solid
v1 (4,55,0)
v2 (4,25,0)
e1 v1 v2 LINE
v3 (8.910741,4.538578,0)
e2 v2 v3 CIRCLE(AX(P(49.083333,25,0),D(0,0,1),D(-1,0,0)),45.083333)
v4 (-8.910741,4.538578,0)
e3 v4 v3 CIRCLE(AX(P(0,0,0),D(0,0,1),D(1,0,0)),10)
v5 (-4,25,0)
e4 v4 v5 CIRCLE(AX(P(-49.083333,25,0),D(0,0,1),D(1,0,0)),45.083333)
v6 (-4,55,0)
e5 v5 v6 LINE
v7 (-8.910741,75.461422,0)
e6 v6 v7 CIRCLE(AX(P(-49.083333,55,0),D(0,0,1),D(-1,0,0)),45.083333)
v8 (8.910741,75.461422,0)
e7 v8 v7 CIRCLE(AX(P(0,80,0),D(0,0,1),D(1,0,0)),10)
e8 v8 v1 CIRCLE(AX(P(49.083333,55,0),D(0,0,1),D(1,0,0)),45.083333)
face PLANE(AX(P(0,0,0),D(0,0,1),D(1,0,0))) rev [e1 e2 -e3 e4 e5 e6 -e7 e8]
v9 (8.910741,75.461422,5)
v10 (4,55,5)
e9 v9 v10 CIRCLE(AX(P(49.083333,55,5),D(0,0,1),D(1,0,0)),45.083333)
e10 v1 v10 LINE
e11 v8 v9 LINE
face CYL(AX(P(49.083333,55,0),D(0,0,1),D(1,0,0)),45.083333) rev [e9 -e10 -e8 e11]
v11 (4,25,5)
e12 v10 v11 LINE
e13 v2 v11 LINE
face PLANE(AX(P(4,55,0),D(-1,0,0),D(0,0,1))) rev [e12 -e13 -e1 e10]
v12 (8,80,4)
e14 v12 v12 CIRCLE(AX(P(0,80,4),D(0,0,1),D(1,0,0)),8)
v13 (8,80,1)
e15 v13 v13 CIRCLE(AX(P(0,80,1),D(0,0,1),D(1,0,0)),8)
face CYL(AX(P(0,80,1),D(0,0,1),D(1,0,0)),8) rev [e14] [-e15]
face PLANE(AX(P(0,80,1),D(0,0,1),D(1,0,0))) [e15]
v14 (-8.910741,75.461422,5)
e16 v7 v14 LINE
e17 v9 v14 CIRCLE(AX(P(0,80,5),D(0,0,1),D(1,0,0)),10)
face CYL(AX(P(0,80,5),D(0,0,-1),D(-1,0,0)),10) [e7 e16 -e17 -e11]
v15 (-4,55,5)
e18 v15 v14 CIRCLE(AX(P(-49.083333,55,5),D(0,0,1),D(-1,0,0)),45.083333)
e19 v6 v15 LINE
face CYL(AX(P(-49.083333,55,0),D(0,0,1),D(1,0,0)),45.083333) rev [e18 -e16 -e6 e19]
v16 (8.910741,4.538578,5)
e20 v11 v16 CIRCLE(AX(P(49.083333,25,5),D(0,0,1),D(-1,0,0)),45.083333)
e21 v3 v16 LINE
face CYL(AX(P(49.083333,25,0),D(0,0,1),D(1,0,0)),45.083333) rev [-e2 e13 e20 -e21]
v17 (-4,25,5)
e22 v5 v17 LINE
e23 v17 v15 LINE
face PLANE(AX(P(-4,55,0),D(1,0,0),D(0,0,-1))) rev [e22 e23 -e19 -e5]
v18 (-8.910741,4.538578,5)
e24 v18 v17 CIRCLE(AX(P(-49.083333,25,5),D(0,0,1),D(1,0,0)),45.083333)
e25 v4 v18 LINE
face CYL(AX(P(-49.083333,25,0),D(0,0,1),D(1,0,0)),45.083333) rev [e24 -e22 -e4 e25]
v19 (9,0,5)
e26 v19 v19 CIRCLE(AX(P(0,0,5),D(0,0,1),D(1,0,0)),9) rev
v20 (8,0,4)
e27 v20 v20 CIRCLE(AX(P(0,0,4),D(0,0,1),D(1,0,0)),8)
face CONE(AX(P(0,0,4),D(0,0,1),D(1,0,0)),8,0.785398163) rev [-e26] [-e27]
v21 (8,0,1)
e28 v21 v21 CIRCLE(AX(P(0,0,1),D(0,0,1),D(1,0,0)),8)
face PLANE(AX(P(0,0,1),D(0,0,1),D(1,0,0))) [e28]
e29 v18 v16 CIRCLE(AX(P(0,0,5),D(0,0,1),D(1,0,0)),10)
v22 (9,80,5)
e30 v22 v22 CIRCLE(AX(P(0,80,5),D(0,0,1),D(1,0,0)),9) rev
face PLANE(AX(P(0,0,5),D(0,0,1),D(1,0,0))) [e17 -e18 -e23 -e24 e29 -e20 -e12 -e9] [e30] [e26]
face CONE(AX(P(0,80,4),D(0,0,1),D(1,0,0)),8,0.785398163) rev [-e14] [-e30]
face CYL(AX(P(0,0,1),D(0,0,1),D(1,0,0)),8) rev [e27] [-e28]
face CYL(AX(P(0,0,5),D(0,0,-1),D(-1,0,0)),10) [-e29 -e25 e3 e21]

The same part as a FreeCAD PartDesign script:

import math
import FreeCAD as App
import Part
import Sketcher
Q = App.Units.Quantity


def edges_at(feature, points):
    """Names of the edges that pass closest to the given points."""
    edges = feature.Shape.Edges
    near = lambda p: min(range(len(edges)), key=lambda i: edges[i].distToShape(Part.Vertex(*p))[0])
    return sorted({f"Edge{near(p) + 1}" for p in points})

doc = App.newDocument("Part")
body = doc.addObject("PartDesign::Body", "Body")

# Sketch on XY plane
sketch1 = body.newObject("Sketcher::SketchObject", "Sketch")
sketch1.AttachmentSupport = (doc.getObject("XY_Plane"), [""])
sketch1.MapMode = "FlatFace"
sketch1.addGeometry([
    Part.LineSegment(App.Vector(-10, 80, 0), App.Vector(-10, 0, 0)),
    Part.ArcOfCircle(Part.Circle(App.Vector(0, 0, 0), App.Vector(0, 0, 1), 10), math.radians(180), math.radians(360)),
    Part.LineSegment(App.Vector(10, 0, 0), App.Vector(10, 80, 0)),
    Part.ArcOfCircle(Part.Circle(App.Vector(0, 80, 0), App.Vector(0, 0, 1), 10), math.radians(0), math.radians(180)),
], False)
sketch1.addConstraint([
    Sketcher.Constraint("Tangent", 0, 2, 1, 1),
    Sketcher.Constraint("Tangent", 1, 2, 2, 1),
    Sketcher.Constraint("Tangent", 2, 2, 3, 1),
    Sketcher.Constraint("Tangent", 3, 2, 0, 1),
    Sketcher.Constraint("Vertical", 0),
    Sketcher.Constraint("Vertical", 2),
    Sketcher.Constraint("Coincident", 1, 3, -1, 1),
    Sketcher.Constraint("Radius", 1, Q("10 mm")),
    Sketcher.Constraint("DistanceY", 0, 2, 0, 1, Q("80 mm")),
])
pad1 = body.newObject("PartDesign::Pad", "Pad")
pad1.Profile = sketch1
pad1.Length = 5

# Sketch on XY plane
sketch2 = body.newObject("Sketcher::SketchObject", "Sketch001")
sketch2.AttachmentSupport = (doc.getObject("XY_Plane"), [""])
sketch2.MapMode = "FlatFace"
sketch2.AttachmentOffset = App.Placement(App.Vector(0, 0, 5), App.Rotation())
sketch2.addGeometry([
    Part.Circle(App.Vector(0, 0, 0), App.Vector(0, 0, 1), 8),
    Part.Circle(App.Vector(0, 80, 0), App.Vector(0, 0, 1), 8),
], False)
sketch2.addConstraint([
    Sketcher.Constraint("Coincident", 0, 3, -1, 1),
    Sketcher.Constraint("Equal", 0, 1),
    Sketcher.Constraint("PointOnObject", 1, 3, -2),
    Sketcher.Constraint("Diameter", 0, Q("16 mm")),
    Sketcher.Constraint("DistanceY", -1, 1, 1, 3, Q("80 mm")),
])
pocket1 = body.newObject("PartDesign::Pocket", "Pocket")
pocket1.Profile = sketch2
pocket1.Length = 4

# Sketch on XY plane
sketch3 = body.newObject("Sketcher::SketchObject", "Sketch002")
sketch3.AttachmentSupport = (doc.getObject("XY_Plane"), [""])
sketch3.MapMode = "FlatFace"
sketch3.AttachmentOffset = App.Placement(App.Vector(0, 0, 5), App.Rotation())
sketch3.addGeometry([
    Part.LineSegment(App.Vector(-4, 25, 0), App.Vector(-4, 55, 0)),  # 0
    Part.ArcOfCircle(Part.Circle(App.Vector(-49.1, 55, 0), App.Vector(0, 0, 1), 45.1), math.radians(0), math.radians(27)),  # 1
    Part.ArcOfCircle(Part.Circle(App.Vector(0, 80, 0), App.Vector(0, 0, 1), 10), math.radians(180), math.radians(207)),  # 2
    Part.LineSegment(App.Vector(-10, 80, 0), App.Vector(-10, 0, 0)),  # 3
    Part.ArcOfCircle(Part.Circle(App.Vector(0, 0, 0), App.Vector(0, 0, 1), 10), math.radians(153), math.radians(180)),  # 4
    Part.ArcOfCircle(Part.Circle(App.Vector(-49.1, 25, 0), App.Vector(0, 0, 1), 45.1), math.radians(-27), math.radians(0)),  # 5
    Part.LineSegment(App.Vector(4, 55, 0), App.Vector(4, 25, 0)),  # 6
    Part.ArcOfCircle(Part.Circle(App.Vector(49.1, 25, 0), App.Vector(0, 0, 1), 45.1), math.radians(-180), math.radians(-153)),  # 7
    Part.ArcOfCircle(Part.Circle(App.Vector(0, 0, 0), App.Vector(0, 0, 1), 10), math.radians(0), math.radians(27)),  # 8
    Part.LineSegment(App.Vector(10, 0, 0), App.Vector(10, 80, 0)),  # 9
    Part.ArcOfCircle(Part.Circle(App.Vector(0, 80, 0), App.Vector(0, 0, 1), 10), math.radians(-27), math.radians(0)),  # 10
    Part.ArcOfCircle(Part.Circle(App.Vector(49.1, 55, 0), App.Vector(0, 0, 1), 45.1), math.radians(153), math.radians(180)),  # 11
], False)
sketch3.addConstraint([
    Sketcher.Constraint("Tangent", 0, 2, 1, 1),
    Sketcher.Constraint("Tangent", 1, 2, 2, 2),
    Sketcher.Constraint("Tangent", 2, 1, 3, 1),
    Sketcher.Constraint("Tangent", 3, 2, 4, 2),
    Sketcher.Constraint("Tangent", 4, 1, 5, 1),
    Sketcher.Constraint("Tangent", 5, 2, 0, 1),
    Sketcher.Constraint("Tangent", 6, 2, 7, 1),
    Sketcher.Constraint("Tangent", 7, 2, 8, 2),
    Sketcher.Constraint("Tangent", 8, 1, 9, 1),
    Sketcher.Constraint("Tangent", 9, 2, 10, 2),
    Sketcher.Constraint("Tangent", 10, 1, 11, 1),
    Sketcher.Constraint("Tangent", 11, 2, 6, 1),
    Sketcher.Constraint("Vertical", 0),
    Sketcher.Constraint("Vertical", 3),
    Sketcher.Constraint("Vertical", 6),
    Sketcher.Constraint("Vertical", 9),
    Sketcher.Constraint("Coincident", 4, 3, -1, 1),
    Sketcher.Constraint("Coincident", 8, 3, -1, 1),
    Sketcher.Constraint("Coincident", 10, 3, 2, 3),
    Sketcher.Constraint("Equal", 2, 4),
    Sketcher.Constraint("Equal", 1, 5),
    Sketcher.Constraint("Equal", 5, 7),
    Sketcher.Constraint("Equal", 4, 8),
    Sketcher.Constraint("Equal", 7, 11),
    Sketcher.Constraint("Horizontal", 5, 3, 7, 3),
    Sketcher.Constraint("Radius", 2, Q("10 mm")),
    Sketcher.Constraint("DistanceY", 0, 1, 0, 2, Q("30 mm")),
    Sketcher.Constraint("DistanceY", 3, 2, 3, 1, Q("80 mm")),
    Sketcher.Constraint("DistanceX", 0, 2, -1, 1, Q("4 mm")),
])
pocket2 = body.newObject("PartDesign::Pocket", "Pocket001")
pocket2.Profile = sketch3
pocket2.Type = "ThroughAll"
doc.recompute()

chamfer = body.newObject("PartDesign::Chamfer", "Chamfer")
chamfer.Base = (pocket2, edges_at(pocket2, [(-8, 0, 5), (-8, 80, 5)]))
chamfer.Size = 1

doc.recompute()
